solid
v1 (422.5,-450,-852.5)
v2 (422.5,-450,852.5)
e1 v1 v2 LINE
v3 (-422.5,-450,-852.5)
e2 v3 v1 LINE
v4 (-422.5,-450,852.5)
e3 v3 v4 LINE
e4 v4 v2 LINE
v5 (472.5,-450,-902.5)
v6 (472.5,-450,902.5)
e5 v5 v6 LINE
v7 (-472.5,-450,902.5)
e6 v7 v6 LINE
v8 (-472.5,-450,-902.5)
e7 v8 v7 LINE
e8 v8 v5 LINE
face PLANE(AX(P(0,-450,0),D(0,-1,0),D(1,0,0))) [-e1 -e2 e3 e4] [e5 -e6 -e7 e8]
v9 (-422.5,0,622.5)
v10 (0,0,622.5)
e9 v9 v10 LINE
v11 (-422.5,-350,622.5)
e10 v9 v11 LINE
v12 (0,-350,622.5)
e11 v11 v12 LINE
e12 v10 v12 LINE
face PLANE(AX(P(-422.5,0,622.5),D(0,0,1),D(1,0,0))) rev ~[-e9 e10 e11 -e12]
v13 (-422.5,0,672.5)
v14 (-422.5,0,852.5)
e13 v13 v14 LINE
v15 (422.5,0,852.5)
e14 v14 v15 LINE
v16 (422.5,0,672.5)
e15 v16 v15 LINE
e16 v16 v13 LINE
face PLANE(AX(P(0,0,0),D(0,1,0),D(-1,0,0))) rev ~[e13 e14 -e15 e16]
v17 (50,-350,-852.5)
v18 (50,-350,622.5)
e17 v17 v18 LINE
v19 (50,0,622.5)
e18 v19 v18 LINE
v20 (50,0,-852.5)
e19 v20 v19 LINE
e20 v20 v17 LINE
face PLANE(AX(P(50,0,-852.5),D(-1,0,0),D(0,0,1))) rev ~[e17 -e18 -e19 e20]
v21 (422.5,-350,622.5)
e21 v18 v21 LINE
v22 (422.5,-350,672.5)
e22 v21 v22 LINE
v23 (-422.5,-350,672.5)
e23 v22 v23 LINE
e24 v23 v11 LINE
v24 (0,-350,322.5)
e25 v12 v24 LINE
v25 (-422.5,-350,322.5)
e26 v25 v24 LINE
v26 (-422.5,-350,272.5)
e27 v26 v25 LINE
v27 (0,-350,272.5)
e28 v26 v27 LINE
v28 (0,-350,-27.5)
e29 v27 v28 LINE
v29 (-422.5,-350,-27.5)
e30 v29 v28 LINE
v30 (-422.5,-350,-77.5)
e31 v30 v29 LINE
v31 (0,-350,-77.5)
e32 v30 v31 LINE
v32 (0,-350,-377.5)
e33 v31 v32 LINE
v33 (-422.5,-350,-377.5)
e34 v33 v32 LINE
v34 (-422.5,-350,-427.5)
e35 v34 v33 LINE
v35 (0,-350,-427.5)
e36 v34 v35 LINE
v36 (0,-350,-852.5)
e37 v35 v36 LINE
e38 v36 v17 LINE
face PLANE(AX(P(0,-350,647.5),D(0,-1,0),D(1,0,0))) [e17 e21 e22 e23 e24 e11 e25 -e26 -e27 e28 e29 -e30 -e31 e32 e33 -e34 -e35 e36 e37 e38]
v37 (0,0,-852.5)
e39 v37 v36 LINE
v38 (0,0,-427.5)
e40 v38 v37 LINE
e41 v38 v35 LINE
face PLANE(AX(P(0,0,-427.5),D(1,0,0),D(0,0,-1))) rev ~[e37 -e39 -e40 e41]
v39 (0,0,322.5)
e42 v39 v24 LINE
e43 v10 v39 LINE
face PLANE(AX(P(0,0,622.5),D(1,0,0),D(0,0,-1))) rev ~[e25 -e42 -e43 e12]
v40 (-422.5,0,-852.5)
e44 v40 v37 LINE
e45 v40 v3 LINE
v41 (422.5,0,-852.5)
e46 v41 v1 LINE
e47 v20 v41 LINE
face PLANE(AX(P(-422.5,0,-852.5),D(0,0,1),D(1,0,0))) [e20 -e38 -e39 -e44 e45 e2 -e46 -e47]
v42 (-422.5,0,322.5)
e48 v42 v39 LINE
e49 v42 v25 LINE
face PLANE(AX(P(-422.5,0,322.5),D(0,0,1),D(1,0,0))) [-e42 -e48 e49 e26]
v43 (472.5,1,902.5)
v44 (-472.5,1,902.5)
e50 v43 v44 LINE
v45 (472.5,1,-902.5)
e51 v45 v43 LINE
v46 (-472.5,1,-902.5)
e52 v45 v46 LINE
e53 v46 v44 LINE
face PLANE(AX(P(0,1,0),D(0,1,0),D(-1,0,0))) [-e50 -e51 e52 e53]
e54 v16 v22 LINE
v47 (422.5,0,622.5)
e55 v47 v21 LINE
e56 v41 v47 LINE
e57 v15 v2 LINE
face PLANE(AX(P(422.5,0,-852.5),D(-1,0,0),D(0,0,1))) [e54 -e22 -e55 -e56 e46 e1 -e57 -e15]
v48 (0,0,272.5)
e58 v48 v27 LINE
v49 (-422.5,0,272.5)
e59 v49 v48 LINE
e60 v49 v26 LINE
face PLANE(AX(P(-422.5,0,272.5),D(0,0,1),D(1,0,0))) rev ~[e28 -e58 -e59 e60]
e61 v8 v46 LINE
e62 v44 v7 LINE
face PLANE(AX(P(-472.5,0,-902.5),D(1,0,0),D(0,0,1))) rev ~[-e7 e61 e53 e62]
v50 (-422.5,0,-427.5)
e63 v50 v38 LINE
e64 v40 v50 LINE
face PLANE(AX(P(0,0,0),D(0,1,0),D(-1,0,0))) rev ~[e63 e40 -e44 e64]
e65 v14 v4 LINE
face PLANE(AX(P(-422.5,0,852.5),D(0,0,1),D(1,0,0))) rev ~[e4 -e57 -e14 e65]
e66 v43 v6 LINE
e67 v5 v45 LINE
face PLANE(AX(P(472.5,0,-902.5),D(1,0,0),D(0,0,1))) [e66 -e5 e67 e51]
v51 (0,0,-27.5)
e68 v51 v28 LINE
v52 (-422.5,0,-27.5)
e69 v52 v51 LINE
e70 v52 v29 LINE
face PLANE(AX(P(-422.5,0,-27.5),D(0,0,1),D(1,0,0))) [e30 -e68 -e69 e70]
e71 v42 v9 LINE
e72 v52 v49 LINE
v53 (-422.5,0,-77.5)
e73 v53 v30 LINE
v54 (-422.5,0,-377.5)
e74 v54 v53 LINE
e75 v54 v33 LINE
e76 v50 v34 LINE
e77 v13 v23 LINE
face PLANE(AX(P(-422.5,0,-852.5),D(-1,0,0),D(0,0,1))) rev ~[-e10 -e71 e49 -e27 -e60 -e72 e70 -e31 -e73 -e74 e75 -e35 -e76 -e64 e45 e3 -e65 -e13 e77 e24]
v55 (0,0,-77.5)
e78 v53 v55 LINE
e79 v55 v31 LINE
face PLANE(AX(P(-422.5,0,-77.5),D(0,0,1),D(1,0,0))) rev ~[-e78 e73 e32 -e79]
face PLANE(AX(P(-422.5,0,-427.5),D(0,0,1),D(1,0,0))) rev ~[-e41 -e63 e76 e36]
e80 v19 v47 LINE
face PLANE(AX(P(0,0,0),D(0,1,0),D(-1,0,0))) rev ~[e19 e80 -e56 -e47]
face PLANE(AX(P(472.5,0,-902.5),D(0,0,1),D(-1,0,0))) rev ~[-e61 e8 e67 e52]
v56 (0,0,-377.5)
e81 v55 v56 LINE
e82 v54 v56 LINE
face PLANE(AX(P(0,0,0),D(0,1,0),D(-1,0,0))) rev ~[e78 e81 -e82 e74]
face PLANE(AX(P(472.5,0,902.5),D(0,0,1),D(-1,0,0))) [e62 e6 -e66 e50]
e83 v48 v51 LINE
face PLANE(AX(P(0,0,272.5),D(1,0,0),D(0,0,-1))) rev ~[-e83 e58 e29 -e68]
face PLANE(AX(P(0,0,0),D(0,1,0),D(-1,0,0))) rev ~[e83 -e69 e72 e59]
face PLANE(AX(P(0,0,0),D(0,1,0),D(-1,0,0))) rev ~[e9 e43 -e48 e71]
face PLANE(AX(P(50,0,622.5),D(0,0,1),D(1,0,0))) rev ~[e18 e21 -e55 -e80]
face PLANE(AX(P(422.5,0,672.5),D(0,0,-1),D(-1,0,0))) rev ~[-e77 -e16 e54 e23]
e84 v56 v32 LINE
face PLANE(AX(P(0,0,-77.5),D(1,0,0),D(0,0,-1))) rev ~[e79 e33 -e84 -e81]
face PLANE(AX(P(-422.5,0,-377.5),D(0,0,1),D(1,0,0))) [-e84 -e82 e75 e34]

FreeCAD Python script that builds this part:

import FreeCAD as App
import Part
import Sketcher
from FreeCAD import Vector
Q = App.Units.Quantity

doc = App.newDocument("Part")
body = doc.addObject("PartDesign::Body", "Body")

# Sketch on XZ plane
sketch1 = body.newObject("Sketcher::SketchObject", "Sketch")
sketch1.AttachmentSupport = (doc.getObject("XZ_Plane"), [""])
sketch1.MapMode = "FlatFace"
sketch1.addGeometry([
    Part.LineSegment(Vector(-472.5, 902.5, 0), Vector(-472.5, -902.5, 0)),  # 0
    Part.LineSegment(Vector(-472.5, -902.5, 0), Vector(472.5, -902.5, 0)),  # 1
    Part.LineSegment(Vector(472.5, -902.5, 0), Vector(472.5, 902.5, 0)),  # 2
    Part.LineSegment(Vector(472.5, 902.5, 0), Vector(-472.5, 902.5, 0)),  # 3
    Part.LineSegment(Vector(422.5, -852.5, 0), Vector(-422.5, -852.5, 0)),  # 4
    Part.LineSegment(Vector(-422.5, -852.5, 0), Vector(-422.5, 852.5, 0)),  # 5
    Part.LineSegment(Vector(-422.5, 852.5, 0), Vector(422.5, 852.5, 0)),  # 6
    Part.LineSegment(Vector(422.5, 852.5, 0), Vector(422.5, -852.5, 0)),  # 7
], False)
sketch1.addConstraint([
    Sketcher.Constraint("Coincident", 0, 2, 1, 1),
    Sketcher.Constraint("Coincident", 1, 2, 2, 1),
    Sketcher.Constraint("Coincident", 2, 2, 3, 1),
    Sketcher.Constraint("Coincident", 3, 2, 0, 1),
    Sketcher.Constraint("Coincident", 4, 2, 5, 1),
    Sketcher.Constraint("Coincident", 5, 2, 6, 1),
    Sketcher.Constraint("Coincident", 6, 2, 7, 1),
    Sketcher.Constraint("Coincident", 7, 2, 4, 1),
    Sketcher.Constraint("Vertical", 0),
    Sketcher.Constraint("Horizontal", 1),
    Sketcher.Constraint("Vertical", 2),
    Sketcher.Constraint("Horizontal", 3),
    Sketcher.Constraint("Horizontal", 4),
    Sketcher.Constraint("Vertical", 5),
    Sketcher.Constraint("Horizontal", 6),
    Sketcher.Constraint("Vertical", 7),
    Sketcher.Constraint("Symmetric", 0, 2, 2, 2, -1, 1),
    Sketcher.Constraint("Symmetric", 4, 2, 6, 2, -1, 1),
    Sketcher.Constraint("DistanceX", 1, 1, 1, 2, Q("945 mm")),
    Sketcher.Constraint("DistanceX", 4, 2, 4, 1, Q("845 mm")),
    Sketcher.Constraint("DistanceY", 0, 2, 0, 1, Q("1805 mm")),
    Sketcher.Constraint("DistanceY", 5, 1, 5, 2, Q("1705 mm")),
])
pad1 = body.newObject("PartDesign::Pad", "Pad")
pad1.Profile = sketch1
pad1.Length = 450

# Sketch on XZ plane
sketch2 = body.newObject("Sketcher::SketchObject", "Sketch001")
sketch2.AttachmentSupport = (doc.getObject("XZ_Plane"), [""])
sketch2.MapMode = "FlatFace"
sketch2.addGeometry([
    Part.LineSegment(Vector(472.5, 902.5, 0), Vector(472.5, -902.5, 0)),
    Part.LineSegment(Vector(472.5, -902.5, 0), Vector(-472.5, -902.5, 0)),
    Part.LineSegment(Vector(-472.5, -902.5, 0), Vector(-472.5, 902.5, 0)),
    Part.LineSegment(Vector(-472.5, 902.5, 0), Vector(472.5, 902.5, 0)),
], False)
sketch2.addConstraint([
    Sketcher.Constraint("Coincident", 0, 2, 1, 1),
    Sketcher.Constraint("Coincident", 1, 2, 2, 1),
    Sketcher.Constraint("Coincident", 2, 2, 3, 1),
    Sketcher.Constraint("Coincident", 3, 2, 0, 1),
    Sketcher.Constraint("Vertical", 0),
    Sketcher.Constraint("Horizontal", 1),
    Sketcher.Constraint("Vertical", 2),
    Sketcher.Constraint("Horizontal", 3),
    Sketcher.Constraint("Symmetric", 0, 2, 2, 2, -1, 1),
    Sketcher.Constraint("DistanceX", 1, 2, 1, 1, Q("945 mm")),
    Sketcher.Constraint("DistanceY", 0, 2, 0, 1, Q("1805 mm")),
])
pad2 = body.newObject("PartDesign::Pad", "Pad001")
pad2.Profile = sketch2
pad2.Length = 1
pad2.Reversed = True

# Sketch on XZ plane
sketch3 = body.newObject("Sketcher::SketchObject", "Sketch002")
sketch3.AttachmentSupport = (doc.getObject("XZ_Plane"), [""])
sketch3.MapMode = "FlatFace"
sketch3.addGeometry([
    Part.LineSegment(Vector(422.5, 672.5, 0), Vector(-422.5, 672.5, 0)),  # 0
    Part.LineSegment(Vector(-422.5, 672.5, 0), Vector(-422.5, 622.5, 0)),  # 1
    Part.LineSegment(Vector(-422.5, 622.5, 0), Vector(0, 622.5, 0)),  # 2
    Part.LineSegment(Vector(0, 622.5, 0), Vector(0, 322.5, 0)),  # 3
    Part.LineSegment(Vector(0, 322.5, 0), Vector(-422.5, 322.5, 0)),  # 4
    Part.LineSegment(Vector(-422.5, 322.5, 0), Vector(-422.5, 272.5, 0)),  # 5
    Part.LineSegment(Vector(-422.5, 272.5, 0), Vector(0, 272.5, 0)),  # 6
    Part.LineSegment(Vector(0, 272.5, 0), Vector(0, -27.5, 0)),  # 7
    Part.LineSegment(Vector(0, -27.5, 0), Vector(-422.5, -27.5, 0)),  # 8
    Part.LineSegment(Vector(-422.5, -27.5, 0), Vector(-422.5, -77.5, 0)),  # 9
    Part.LineSegment(Vector(-422.5, -77.5, 0), Vector(0, -77.5, 0)),  # 10
    Part.LineSegment(Vector(0, -77.5, 0), Vector(0, -377.5, 0)),  # 11
    Part.LineSegment(Vector(0, -377.5, 0), Vector(-422.5, -377.5, 0)),  # 12
    Part.LineSegment(Vector(-422.5, -377.5, 0), Vector(-422.5, -427.5, 0)),  # 13
    Part.LineSegment(Vector(-422.5, -427.5, 0), Vector(0, -427.5, 0)),  # 14
    Part.LineSegment(Vector(0, -427.5, 0), Vector(0, -852.5, 0)),  # 15
    Part.LineSegment(Vector(0, -852.5, 0), Vector(50, -852.5, 0)),  # 16
    Part.LineSegment(Vector(50, -852.5, 0), Vector(50, 622.5, 0)),  # 17
    Part.LineSegment(Vector(50, 622.5, 0), Vector(422.5, 622.5, 0)),  # 18
    Part.LineSegment(Vector(422.5, 622.5, 0), Vector(422.5, 672.5, 0)),  # 19
], False)
sketch3.addConstraint([
    Sketcher.Constraint("Coincident", 0, 2, 1, 1),
    Sketcher.Constraint("Coincident", 1, 2, 2, 1),
    Sketcher.Constraint("Coincident", 2, 2, 3, 1),
    Sketcher.Constraint("Coincident", 3, 2, 4, 1),
    Sketcher.Constraint("Coincident", 4, 2, 5, 1),
    Sketcher.Constraint("Coincident", 5, 2, 6, 1),
    Sketcher.Constraint("Coincident", 6, 2, 7, 1),
    Sketcher.Constraint("Coincident", 7, 2, 8, 1),
    Sketcher.Constraint("Coincident", 8, 2, 9, 1),
    Sketcher.Constraint("Coincident", 9, 2, 10, 1),
    Sketcher.Constraint("Coincident", 10, 2, 11, 1),
    Sketcher.Constraint("Coincident", 11, 2, 12, 1),
    Sketcher.Constraint("Coincident", 12, 2, 13, 1),
    Sketcher.Constraint("Coincident", 13, 2, 14, 1),
    Sketcher.Constraint("Coincident", 14, 2, 15, 1),
    Sketcher.Constraint("Coincident", 15, 2, 16, 1),
    Sketcher.Constraint("Coincident", 16, 2, 17, 1),
    Sketcher.Constraint("Coincident", 17, 2, 18, 1),
    Sketcher.Constraint("Coincident", 18, 2, 19, 1),
    Sketcher.Constraint("Coincident", 19, 2, 0, 1),
    Sketcher.Constraint("Horizontal", 0),
    Sketcher.Constraint("Vertical", 1),
    Sketcher.Constraint("Horizontal", 2),
    Sketcher.Constraint("Vertical", 3),
    Sketcher.Constraint("Horizontal", 4),
    Sketcher.Constraint("Vertical", 5),
    Sketcher.Constraint("Horizontal", 6),
    Sketcher.Constraint("Vertical", 7),
    Sketcher.Constraint("Horizontal", 8),
    Sketcher.Constraint("Vertical", 9),
    Sketcher.Constraint("Horizontal", 10),
    Sketcher.Constraint("Vertical", 11),
    Sketcher.Constraint("Horizontal", 12),
    Sketcher.Constraint("Vertical", 13),
    Sketcher.Constraint("Horizontal", 14),
    Sketcher.Constraint("Vertical", 15),
    Sketcher.Constraint("Horizontal", 16),
    Sketcher.Constraint("Vertical", 17),
    Sketcher.Constraint("Horizontal", 18),
    Sketcher.Constraint("Vertical", 19),
    Sketcher.Constraint("Symmetric", 1, 2, 18, 2, -2),
    Sketcher.Constraint("PointOnObject", 2, 2, -2),
    Sketcher.Constraint("PointOnObject", 6, 2, -2),
    Sketcher.Constraint("PointOnObject", 10, 2, -2),
    Sketcher.Constraint("PointOnObject", 14, 2, -2),
    Sketcher.Constraint("Vertical", 1, 2, 4, 2),
    Sketcher.Constraint("Vertical", 5, 2, 8, 2),
    Sketcher.Constraint("Vertical", 9, 2, 12, 2),
    Sketcher.Constraint("Equal", 16, 1),
    Sketcher.Constraint("Equal", 1, 5),
    Sketcher.Constraint("Equal", 3, 7),
    Sketcher.Constraint("Equal", 5, 9),
    Sketcher.Constraint("Equal", 7, 11),
    Sketcher.Constraint("Equal", 9, 13),
    Sketcher.Constraint("DistanceX", 0, 2, 0, 1, Q("845 mm")),
    Sketcher.Constraint("DistanceX", 16, 1, 16, 2, Q("50 mm")),
    Sketcher.Constraint("DistanceY", 3, 2, 3, 1, Q("300 mm")),
    Sketcher.Constraint("DistanceY", 15, 2, 15, 1, Q("425 mm")),
    Sketcher.Constraint("DistanceY", -1, 1, 0, 2, Q("672.5 mm")),
])
pad3 = body.newObject("PartDesign::Pad", "Pad002")
pad3.Profile = sketch3
pad3.Length = 350

doc.recompute()
